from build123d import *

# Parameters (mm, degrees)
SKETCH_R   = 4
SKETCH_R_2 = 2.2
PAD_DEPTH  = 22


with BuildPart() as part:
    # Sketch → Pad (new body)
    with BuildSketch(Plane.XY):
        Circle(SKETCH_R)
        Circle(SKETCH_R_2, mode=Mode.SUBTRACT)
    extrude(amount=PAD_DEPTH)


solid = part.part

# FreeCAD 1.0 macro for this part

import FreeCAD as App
import Part
import Sketcher
from FreeCAD import Vector
Q = App.Units.Quantity

doc = App.newDocument("Part")
body = doc.addObject("PartDesign::Body", "Body")

sketch1 = body.newObject("Sketcher::SketchObject", "Sketch")
sketch1.AttachmentSupport = (doc.getObject("XY_Plane"), [""])
sketch1.MapMode = "FlatFace"
sketch1.addGeometry(Part.Circle(Vector(0, 0, 0), Vector(0, 0, 1), 4), False)
sketch1.addGeometry(Part.Circle(Vector(0, 0, 0), Vector(0, 0, 1), 2.2), False)
sketch1.addConstraint(Sketcher.Constraint("Coincident", 0, 3, -1, 1))
sketch1.addConstraint(Sketcher.Constraint("Coincident", 1, 3, -1, 1))
sketch1.addConstraint(Sketcher.Constraint("Diameter", 0, Q("8 mm")))
sketch1.addConstraint(Sketcher.Constraint("Diameter", 1, Q("4.4 mm")))
pad1 = body.newObject("PartDesign::Pad", "Pad")
pad1.Profile = sketch1
pad1.Length = 22

doc.recompute()
